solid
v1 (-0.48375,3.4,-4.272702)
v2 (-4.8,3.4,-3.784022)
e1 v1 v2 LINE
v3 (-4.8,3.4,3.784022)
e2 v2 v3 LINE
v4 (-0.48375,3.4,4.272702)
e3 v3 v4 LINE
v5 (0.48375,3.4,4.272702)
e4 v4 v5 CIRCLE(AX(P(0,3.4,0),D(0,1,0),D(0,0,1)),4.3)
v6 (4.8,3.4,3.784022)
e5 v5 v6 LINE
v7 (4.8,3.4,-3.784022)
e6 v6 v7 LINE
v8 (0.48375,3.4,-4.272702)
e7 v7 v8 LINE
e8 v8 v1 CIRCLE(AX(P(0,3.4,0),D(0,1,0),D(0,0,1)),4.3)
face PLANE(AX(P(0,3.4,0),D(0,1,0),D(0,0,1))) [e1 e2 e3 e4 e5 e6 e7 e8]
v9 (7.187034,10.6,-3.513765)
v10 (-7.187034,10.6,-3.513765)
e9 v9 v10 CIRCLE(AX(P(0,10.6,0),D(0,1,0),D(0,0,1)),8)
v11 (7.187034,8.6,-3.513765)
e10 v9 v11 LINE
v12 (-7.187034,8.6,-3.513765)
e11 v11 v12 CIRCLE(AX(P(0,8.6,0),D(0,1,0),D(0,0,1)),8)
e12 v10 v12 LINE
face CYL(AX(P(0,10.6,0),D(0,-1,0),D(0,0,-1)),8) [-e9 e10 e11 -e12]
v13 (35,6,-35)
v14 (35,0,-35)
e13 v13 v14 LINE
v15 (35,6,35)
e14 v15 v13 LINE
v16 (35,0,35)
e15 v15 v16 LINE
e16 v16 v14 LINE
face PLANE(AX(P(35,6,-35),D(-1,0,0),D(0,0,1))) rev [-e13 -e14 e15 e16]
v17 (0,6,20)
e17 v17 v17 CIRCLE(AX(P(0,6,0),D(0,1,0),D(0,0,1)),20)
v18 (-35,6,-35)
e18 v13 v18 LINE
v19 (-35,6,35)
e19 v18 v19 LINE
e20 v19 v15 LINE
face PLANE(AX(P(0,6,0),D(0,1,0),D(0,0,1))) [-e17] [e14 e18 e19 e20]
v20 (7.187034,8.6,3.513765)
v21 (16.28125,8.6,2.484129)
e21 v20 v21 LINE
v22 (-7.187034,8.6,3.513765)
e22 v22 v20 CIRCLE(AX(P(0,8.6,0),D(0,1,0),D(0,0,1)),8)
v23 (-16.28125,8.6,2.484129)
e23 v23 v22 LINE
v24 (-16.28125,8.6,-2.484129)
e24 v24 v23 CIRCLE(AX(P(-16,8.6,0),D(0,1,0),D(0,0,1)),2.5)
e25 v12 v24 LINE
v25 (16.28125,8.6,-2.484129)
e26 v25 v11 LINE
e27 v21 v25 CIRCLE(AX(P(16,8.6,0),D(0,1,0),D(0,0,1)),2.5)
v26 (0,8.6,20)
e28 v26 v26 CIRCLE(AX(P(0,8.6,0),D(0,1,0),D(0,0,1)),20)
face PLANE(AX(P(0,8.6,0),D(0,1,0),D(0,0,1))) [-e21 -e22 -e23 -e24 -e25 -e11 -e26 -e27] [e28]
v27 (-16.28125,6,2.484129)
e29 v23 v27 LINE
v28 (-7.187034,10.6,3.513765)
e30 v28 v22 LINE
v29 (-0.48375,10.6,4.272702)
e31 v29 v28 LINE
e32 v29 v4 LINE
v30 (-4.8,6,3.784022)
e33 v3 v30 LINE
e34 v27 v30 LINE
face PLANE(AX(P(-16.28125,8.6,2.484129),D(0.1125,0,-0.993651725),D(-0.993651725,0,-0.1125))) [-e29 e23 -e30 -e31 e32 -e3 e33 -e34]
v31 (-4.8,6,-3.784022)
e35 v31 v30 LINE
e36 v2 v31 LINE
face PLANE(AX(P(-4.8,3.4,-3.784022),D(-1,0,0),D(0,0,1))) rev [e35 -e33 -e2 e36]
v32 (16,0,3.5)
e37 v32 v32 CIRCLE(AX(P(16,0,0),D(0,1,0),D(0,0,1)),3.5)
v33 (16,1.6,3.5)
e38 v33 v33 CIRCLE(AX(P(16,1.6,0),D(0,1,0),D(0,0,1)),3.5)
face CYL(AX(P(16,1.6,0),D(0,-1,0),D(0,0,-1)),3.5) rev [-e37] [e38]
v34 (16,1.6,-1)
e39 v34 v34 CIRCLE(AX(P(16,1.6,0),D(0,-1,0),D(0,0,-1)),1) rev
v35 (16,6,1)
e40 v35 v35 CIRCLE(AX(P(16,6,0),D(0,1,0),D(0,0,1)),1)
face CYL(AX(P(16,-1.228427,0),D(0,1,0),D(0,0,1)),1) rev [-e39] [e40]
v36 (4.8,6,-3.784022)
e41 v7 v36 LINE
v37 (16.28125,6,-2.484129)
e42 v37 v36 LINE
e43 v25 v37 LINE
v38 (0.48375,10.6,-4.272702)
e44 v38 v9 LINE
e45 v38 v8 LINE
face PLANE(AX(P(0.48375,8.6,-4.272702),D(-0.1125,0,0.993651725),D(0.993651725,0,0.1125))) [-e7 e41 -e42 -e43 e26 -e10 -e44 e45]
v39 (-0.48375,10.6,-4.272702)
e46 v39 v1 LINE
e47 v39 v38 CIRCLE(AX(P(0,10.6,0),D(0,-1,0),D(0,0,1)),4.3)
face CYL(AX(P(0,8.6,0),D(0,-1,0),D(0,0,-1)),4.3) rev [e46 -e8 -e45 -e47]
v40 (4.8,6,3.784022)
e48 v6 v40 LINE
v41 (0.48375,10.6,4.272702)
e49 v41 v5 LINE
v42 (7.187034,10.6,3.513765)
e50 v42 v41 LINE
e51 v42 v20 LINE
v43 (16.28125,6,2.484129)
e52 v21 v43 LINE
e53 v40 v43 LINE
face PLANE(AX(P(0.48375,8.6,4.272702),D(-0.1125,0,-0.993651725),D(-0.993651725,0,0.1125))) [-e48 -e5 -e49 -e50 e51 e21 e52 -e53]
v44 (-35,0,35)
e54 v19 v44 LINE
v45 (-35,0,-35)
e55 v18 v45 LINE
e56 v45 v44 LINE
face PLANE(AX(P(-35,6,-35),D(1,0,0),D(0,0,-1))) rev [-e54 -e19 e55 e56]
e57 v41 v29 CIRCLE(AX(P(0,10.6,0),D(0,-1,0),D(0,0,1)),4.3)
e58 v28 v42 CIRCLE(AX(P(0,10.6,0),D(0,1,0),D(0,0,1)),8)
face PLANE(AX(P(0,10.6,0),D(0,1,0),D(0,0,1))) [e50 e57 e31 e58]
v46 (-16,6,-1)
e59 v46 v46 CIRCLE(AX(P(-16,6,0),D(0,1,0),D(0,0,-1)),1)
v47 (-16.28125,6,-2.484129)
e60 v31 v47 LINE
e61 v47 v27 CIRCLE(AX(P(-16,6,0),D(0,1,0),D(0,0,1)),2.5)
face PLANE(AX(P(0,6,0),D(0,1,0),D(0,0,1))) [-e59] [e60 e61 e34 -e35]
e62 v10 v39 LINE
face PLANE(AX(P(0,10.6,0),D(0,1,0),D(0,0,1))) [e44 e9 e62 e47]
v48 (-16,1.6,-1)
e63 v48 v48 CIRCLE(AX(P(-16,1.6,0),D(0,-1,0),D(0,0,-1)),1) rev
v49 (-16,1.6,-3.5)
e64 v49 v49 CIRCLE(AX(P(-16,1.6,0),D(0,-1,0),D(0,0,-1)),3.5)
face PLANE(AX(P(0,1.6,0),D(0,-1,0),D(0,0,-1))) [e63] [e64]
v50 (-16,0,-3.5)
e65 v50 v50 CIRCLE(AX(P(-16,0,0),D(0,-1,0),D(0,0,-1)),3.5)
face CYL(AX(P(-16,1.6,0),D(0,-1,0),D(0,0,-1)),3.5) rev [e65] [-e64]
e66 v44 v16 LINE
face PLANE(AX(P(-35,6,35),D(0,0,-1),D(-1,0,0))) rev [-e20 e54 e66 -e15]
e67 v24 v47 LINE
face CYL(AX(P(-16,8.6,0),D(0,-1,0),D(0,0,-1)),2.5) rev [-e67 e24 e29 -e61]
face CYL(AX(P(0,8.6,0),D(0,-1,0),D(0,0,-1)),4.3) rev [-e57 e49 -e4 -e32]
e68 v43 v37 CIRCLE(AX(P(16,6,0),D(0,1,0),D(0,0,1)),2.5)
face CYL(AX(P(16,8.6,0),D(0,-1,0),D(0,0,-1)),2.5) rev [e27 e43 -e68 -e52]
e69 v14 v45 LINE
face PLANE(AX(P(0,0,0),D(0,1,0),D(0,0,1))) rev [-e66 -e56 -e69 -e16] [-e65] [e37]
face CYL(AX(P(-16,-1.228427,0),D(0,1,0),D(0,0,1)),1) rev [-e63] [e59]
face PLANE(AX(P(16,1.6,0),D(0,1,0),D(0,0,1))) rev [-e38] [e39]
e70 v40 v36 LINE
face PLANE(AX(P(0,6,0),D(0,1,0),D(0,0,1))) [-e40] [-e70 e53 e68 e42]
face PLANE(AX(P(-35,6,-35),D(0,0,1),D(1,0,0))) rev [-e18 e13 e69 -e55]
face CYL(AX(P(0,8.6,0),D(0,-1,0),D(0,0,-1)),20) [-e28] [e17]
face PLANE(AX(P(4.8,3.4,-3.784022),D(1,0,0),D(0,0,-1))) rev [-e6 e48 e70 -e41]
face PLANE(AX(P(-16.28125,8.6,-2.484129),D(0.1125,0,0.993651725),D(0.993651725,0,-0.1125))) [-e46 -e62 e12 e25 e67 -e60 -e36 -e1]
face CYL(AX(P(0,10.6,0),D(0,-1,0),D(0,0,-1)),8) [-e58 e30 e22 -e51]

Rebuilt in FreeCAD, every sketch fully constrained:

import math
import FreeCAD as App
import Part
import Sketcher
from FreeCAD import Vector


def add_polygon(sketch, points):
    """Adds a closed chain of lines whose ends are joined by coincident constraints."""
    first, n = sketch.GeometryCount, len(points)
    for a, b in zip(points, points[1:] + points[:1]):
        sketch.addGeometry(Part.LineSegment(App.Vector(*a, 0), App.Vector(*b, 0)), False)
    for i in range(n):
        sketch.addConstraint(Sketcher.Constraint("Coincident", first + i, 2, first + (i + 1) % n, 1))

doc = App.newDocument("Part")
body = doc.addObject("PartDesign::Body", "Body")

sketch1 = body.newObject("Sketcher::SketchObject", "Sketch")
sketch1.AttachmentSupport = (doc.getObject("XZ_Plane"), [""])
sketch1.MapMode = "FlatFace"
add_polygon(sketch1, [(-35, -35), (-35, 35), (35, 35), (35, -35)])
sketch1.addConstraint([
    Sketcher.Constraint("Vertical", 0),
    Sketcher.Constraint("Horizontal", 1),
    Sketcher.Constraint("Vertical", 2),
    Sketcher.Constraint("Horizontal", 3),
    Sketcher.Constraint("Symmetric", 0, 2, 2, 2, -1, 1),
    Sketcher.Constraint("Equal", 3, 0),
    Sketcher.Constraint("DistanceX", 1, 1, 1, 2, 70.0),
])
pad1 = body.newObject("PartDesign::Pad", "Pad")
pad1.Profile = sketch1
pad1.Length = 6
pad1.Reversed = True

sketch2 = body.newObject("Sketcher::SketchObject", "Sketch001")
sketch2.AttachmentSupport = (doc.getObject("XZ_Plane"), [""])
sketch2.MapMode = "FlatFace"
sketch2.AttachmentOffset = App.Placement(Vector(0, 0, -6), App.Rotation())
sketch2.addGeometry([
    Part.Circle(Vector(0, 0, 0), Vector(0, 0, 1), 20),
    Part.LineSegment(Vector(-0.48375, 4.272702, 0), Vector(-16.28125, 2.484129, 0)),
    Part.ArcOfCircle(Part.Circle(Vector(-16, 0, 0), Vector(0, 0, 1), 2.5), math.radians(96.45945), math.radians(263.54055)),
    Part.LineSegment(Vector(-16.28125, -2.484129, 0), Vector(-0.48375, -4.272702, 0)),
    Part.ArcOfCircle(Part.Circle(Vector(0, 0, 0), Vector(0, 0, 1), 4.3), math.radians(-96.45945), math.radians(-83.54055)),
    Part.LineSegment(Vector(0.48375, -4.272702, 0), Vector(16.28125, -2.484129, 0)),
    Part.ArcOfCircle(Part.Circle(Vector(16, 0, 0), Vector(0, 0, 1), 2.5), math.radians(-83.54055), math.radians(83.54055)),
    Part.LineSegment(Vector(16.28125, 2.484129, 0), Vector(0.48375, 4.272702, 0)),
    Part.ArcOfCircle(Part.Circle(Vector(0, 0, 0), Vector(0, 0, 1), 4.3), math.radians(83.54055), math.radians(96.45945)),
], False)
sketch2.addConstraint([
    Sketcher.Constraint("Tangent", 1, 2, 2, 1),
    Sketcher.Constraint("Tangent", 2, 2, 3, 1),
    Sketcher.Constraint("Tangent", 3, 2, 4, 1),
    Sketcher.Constraint("Tangent", 4, 2, 5, 1),
    Sketcher.Constraint("Tangent", 5, 2, 6, 1),
    Sketcher.Constraint("Tangent", 6, 2, 7, 1),
    Sketcher.Constraint("Tangent", 7, 2, 8, 1),
    Sketcher.Constraint("Tangent", 8, 2, 1, 1),
    Sketcher.Constraint("Coincident", 0, 3, -1, 1),
    Sketcher.Constraint("Coincident", 4, 3, -1, 1),
    Sketcher.Constraint("Coincident", 8, 3, -1, 1),
    Sketcher.Constraint("Equal", 2, 6),
    Sketcher.Constraint("Equal", 4, 8),
    Sketcher.Constraint("Symmetric", 2, 3, 6, 3, -1, 1),
    Sketcher.Constraint("PointOnObject", 2, 3, -1),
    Sketcher.Constraint("Diameter", 0, 40.0),
    Sketcher.Constraint("Radius", 2, 2.5),
    Sketcher.Constraint("Radius", 4, 4.3),
    Sketcher.Constraint("DistanceX", 2, 3, -1, 1, 16.0),
])
pad2 = body.newObject("PartDesign::Pad", "Pad001")
pad2.Profile = sketch2
pad2.Length = 2.6
pad2.Reversed = True

sketch3 = body.newObject("Sketcher::SketchObject", "Sketch002")
sketch3.AttachmentSupport = (doc.getObject("XZ_Plane"), [""])
sketch3.MapMode = "FlatFace"
sketch3.AttachmentOffset = App.Placement(Vector(0, 0, -3.4), App.Rotation())
sketch3.addGeometry([
    Part.LineSegment(Vector(-4.8, -3.784022, 0), Vector(-4.8, 3.784022, 0)),
    Part.LineSegment(Vector(-4.8, 3.784022, 0), Vector(-0.48375, 4.272702, 0)),
    Part.ArcOfCircle(Part.Circle(Vector(0, 0, 0), Vector(0, 0, 1), 4.3), math.radians(83.54055), math.radians(96.45945)),
    Part.LineSegment(Vector(0.48375, 4.272702, 0), Vector(4.8, 3.784022, 0)),
    Part.LineSegment(Vector(4.8, 3.784022, 0), Vector(4.8, -3.784022, 0)),
    Part.LineSegment(Vector(4.8, -3.784022, 0), Vector(0.48375, -4.272702, 0)),
    Part.ArcOfCircle(Part.Circle(Vector(0, 0, 0), Vector(0, 0, 1), 4.3), math.radians(-96.45945), math.radians(-83.54055)),
    Part.LineSegment(Vector(-0.48375, -4.272702, 0), Vector(-4.8, -3.784022, 0)),
], False)
sketch3.addConstraint([
    Sketcher.Constraint("Coincident", 0, 2, 1, 1),
    Sketcher.Constraint("Tangent", 1, 2, 2, 2),
    Sketcher.Constraint("Tangent", 2, 1, 3, 1),
    Sketcher.Constraint("Coincident", 3, 2, 4, 1),
    Sketcher.Constraint("Coincident", 4, 2, 5, 1),
    Sketcher.Constraint("Tangent", 5, 2, 6, 2),
    Sketcher.Constraint("Tangent", 6, 1, 7, 1),
    Sketcher.Constraint("Coincident", 7, 2, 0, 1),
    Sketcher.Constraint("Vertical", 0),
    Sketcher.Constraint("Vertical", 4),
    Sketcher.Constraint("Coincident", 2, 3, -1, 1),
    Sketcher.Constraint("Coincident", 6, 3, -1, 1),
    Sketcher.Constraint("Equal", 2, 6),
    Sketcher.Constraint("Symmetric", 0, 2, 4, 2, -1, 1),
    Sketcher.Constraint("Parallel", 3, 7),
    Sketcher.Constraint("Horizontal", 1, 2, 2, 1),
    Sketcher.Constraint("Radius", 2, 4.3),
    Sketcher.Constraint("DistanceX", 0, 2, -1, 1, 4.8),
    Sketcher.Constraint("DistanceX", 1, 2, 2, 1, 0.9675),
])
pocket1 = body.newObject("PartDesign::Pocket", "Pocket")
pocket1.Profile = sketch3
pocket1.Length = 2.6

sketch4 = body.newObject("Sketcher::SketchObject", "Sketch003")
sketch4.AttachmentSupport = (doc.getObject("XZ_Plane"), [""])
sketch4.MapMode = "FlatFace"
sketch4.addGeometry([
    Part.Circle(Vector(16, 0, 0), Vector(0, 0, 1), 3.5),
    Part.Circle(Vector(-16, 0, 0), Vector(0, 0, 1), 3.5),
], False)
sketch4.addConstraint([
    Sketcher.Constraint("Equal", 0, 1),
    Sketcher.Constraint("Symmetric", 0, 3, 1, 3, -1, 1),
    Sketcher.Constraint("PointOnObject", 0, 3, -1),
    Sketcher.Constraint("Diameter", 0, 7.0),
    Sketcher.Constraint("DistanceX", -1, 1, 0, 3, 16.0),
])
pocket2 = body.newObject("PartDesign::Pocket", "Pocket001")
pocket2.Profile = sketch4
pocket2.Length = 1.6

sketch5 = body.newObject("Sketcher::SketchObject", "Sketch004")
sketch5.AttachmentSupport = (doc.getObject("XZ_Plane"), [""])
sketch5.MapMode = "FlatFace"
sketch5.AttachmentOffset = App.Placement(Vector(0, 0, -6), App.Rotation())
sketch5.addGeometry([
    Part.Circle(Vector(16, 0, 0), Vector(0, 0, 1), 1),
    Part.Circle(Vector(-16, 0, 0), Vector(0, 0, 1), 1),
], False)
sketch5.addConstraint([
    Sketcher.Constraint("Equal", 0, 1),
    Sketcher.Constraint("Symmetric", 0, 3, 1, 3, -1, 1),
    Sketcher.Constraint("PointOnObject", 0, 3, -1),
    Sketcher.Constraint("Diameter", 0, 2.0),
    Sketcher.Constraint("DistanceX", -1, 1, 0, 3, 16.0),
])
pocket3 = body.newObject("PartDesign::Pocket", "Pocket002")
pocket3.Profile = sketch5
pocket3.Length = 4.4
pocket3.Reversed = True

sketch6 = body.newObject("Sketcher::SketchObject", "Sketch005")
sketch6.AttachmentSupport = (doc.getObject("XZ_Plane"), [""])
sketch6.MapMode = "FlatFace"
sketch6.AttachmentOffset = App.Placement(Vector(0, 0, -8.6), App.Rotation())
sketch6.addGeometry([
    Part.LineSegment(Vector(0.48375, -4.272702, 0), Vector(7.187034, -3.513765, 0)),
    Part.ArcOfCircle(Part.Circle(Vector(0, 0, 0), Vector(0, 0, 1), 8), math.radians(-153.945835), math.radians(-26.054165)),
    Part.LineSegment(Vector(-7.187034, -3.513765, 0), Vector(-0.48375, -4.272702, 0)),
    Part.ArcOfCircle(Part.Circle(Vector(0, 0, 0), Vector(0, 0, 1), 4.3), math.radians(-96.45945), math.radians(-83.54055)),
    Part.LineSegment(Vector(7.187034, 3.513765, 0), Vector(0.48375, 4.272702, 0)),
    Part.ArcOfCircle(Part.Circle(Vector(0, 0, 0), Vector(0, 0, 1), 4.3), math.radians(83.54055), math.radians(96.45945)),
    Part.LineSegment(Vector(-0.48375, 4.272702, 0), Vector(-7.187034, 3.513765, 0)),
    Part.ArcOfCircle(Part.Circle(Vector(0, 0, 0), Vector(0, 0, 1), 8), math.radians(26.054165), math.radians(153.945835)),
], False)
sketch6.addConstraint([
    Sketcher.Constraint("Coincident", 0, 2, 1, 2),
    Sketcher.Constraint("Coincident", 1, 1, 2, 1),
    Sketcher.Constraint("Tangent", 2, 2, 3, 1),
    Sketcher.Constraint("Tangent", 3, 2, 0, 1),
    Sketcher.Constraint("Tangent", 4, 2, 5, 1),
    Sketcher.Constraint("Tangent", 5, 2, 6, 1),
    Sketcher.Constraint("Coincident", 6, 2, 7, 2),
    Sketcher.Constraint("Coincident", 7, 1, 4, 1),
    Sketcher.Constraint("Coincident", 1, 3, -1, 1),
    Sketcher.Constraint("Coincident", 3, 3, -1, 1),
    Sketcher.Constraint("Coincident", 5, 3, -1, 1),
    Sketcher.Constraint("Coincident", 7, 3, -1, 1),
    Sketcher.Constraint("Equal", 3, 5),
    Sketcher.Constraint("Equal", 1, 7),
    Sketcher.Constraint("Parallel", 2, 4),
    Sketcher.Constraint("Parallel", 0, 6),
    Sketcher.Constraint("Horizontal", 0, 2, 1, 1),
    Sketcher.Constraint("Radius", 1, 8.0),
    Sketcher.Constraint("Radius", 3, 4.3),
    Sketcher.Constraint("DistanceX", 2, 2, 3, 2, 0.9675),
])
pad3 = body.newObject("PartDesign::Pad", "Pad002")
pad3.Profile = sketch6
pad3.Length = 2
pad3.Reversed = True

doc.recompute()
